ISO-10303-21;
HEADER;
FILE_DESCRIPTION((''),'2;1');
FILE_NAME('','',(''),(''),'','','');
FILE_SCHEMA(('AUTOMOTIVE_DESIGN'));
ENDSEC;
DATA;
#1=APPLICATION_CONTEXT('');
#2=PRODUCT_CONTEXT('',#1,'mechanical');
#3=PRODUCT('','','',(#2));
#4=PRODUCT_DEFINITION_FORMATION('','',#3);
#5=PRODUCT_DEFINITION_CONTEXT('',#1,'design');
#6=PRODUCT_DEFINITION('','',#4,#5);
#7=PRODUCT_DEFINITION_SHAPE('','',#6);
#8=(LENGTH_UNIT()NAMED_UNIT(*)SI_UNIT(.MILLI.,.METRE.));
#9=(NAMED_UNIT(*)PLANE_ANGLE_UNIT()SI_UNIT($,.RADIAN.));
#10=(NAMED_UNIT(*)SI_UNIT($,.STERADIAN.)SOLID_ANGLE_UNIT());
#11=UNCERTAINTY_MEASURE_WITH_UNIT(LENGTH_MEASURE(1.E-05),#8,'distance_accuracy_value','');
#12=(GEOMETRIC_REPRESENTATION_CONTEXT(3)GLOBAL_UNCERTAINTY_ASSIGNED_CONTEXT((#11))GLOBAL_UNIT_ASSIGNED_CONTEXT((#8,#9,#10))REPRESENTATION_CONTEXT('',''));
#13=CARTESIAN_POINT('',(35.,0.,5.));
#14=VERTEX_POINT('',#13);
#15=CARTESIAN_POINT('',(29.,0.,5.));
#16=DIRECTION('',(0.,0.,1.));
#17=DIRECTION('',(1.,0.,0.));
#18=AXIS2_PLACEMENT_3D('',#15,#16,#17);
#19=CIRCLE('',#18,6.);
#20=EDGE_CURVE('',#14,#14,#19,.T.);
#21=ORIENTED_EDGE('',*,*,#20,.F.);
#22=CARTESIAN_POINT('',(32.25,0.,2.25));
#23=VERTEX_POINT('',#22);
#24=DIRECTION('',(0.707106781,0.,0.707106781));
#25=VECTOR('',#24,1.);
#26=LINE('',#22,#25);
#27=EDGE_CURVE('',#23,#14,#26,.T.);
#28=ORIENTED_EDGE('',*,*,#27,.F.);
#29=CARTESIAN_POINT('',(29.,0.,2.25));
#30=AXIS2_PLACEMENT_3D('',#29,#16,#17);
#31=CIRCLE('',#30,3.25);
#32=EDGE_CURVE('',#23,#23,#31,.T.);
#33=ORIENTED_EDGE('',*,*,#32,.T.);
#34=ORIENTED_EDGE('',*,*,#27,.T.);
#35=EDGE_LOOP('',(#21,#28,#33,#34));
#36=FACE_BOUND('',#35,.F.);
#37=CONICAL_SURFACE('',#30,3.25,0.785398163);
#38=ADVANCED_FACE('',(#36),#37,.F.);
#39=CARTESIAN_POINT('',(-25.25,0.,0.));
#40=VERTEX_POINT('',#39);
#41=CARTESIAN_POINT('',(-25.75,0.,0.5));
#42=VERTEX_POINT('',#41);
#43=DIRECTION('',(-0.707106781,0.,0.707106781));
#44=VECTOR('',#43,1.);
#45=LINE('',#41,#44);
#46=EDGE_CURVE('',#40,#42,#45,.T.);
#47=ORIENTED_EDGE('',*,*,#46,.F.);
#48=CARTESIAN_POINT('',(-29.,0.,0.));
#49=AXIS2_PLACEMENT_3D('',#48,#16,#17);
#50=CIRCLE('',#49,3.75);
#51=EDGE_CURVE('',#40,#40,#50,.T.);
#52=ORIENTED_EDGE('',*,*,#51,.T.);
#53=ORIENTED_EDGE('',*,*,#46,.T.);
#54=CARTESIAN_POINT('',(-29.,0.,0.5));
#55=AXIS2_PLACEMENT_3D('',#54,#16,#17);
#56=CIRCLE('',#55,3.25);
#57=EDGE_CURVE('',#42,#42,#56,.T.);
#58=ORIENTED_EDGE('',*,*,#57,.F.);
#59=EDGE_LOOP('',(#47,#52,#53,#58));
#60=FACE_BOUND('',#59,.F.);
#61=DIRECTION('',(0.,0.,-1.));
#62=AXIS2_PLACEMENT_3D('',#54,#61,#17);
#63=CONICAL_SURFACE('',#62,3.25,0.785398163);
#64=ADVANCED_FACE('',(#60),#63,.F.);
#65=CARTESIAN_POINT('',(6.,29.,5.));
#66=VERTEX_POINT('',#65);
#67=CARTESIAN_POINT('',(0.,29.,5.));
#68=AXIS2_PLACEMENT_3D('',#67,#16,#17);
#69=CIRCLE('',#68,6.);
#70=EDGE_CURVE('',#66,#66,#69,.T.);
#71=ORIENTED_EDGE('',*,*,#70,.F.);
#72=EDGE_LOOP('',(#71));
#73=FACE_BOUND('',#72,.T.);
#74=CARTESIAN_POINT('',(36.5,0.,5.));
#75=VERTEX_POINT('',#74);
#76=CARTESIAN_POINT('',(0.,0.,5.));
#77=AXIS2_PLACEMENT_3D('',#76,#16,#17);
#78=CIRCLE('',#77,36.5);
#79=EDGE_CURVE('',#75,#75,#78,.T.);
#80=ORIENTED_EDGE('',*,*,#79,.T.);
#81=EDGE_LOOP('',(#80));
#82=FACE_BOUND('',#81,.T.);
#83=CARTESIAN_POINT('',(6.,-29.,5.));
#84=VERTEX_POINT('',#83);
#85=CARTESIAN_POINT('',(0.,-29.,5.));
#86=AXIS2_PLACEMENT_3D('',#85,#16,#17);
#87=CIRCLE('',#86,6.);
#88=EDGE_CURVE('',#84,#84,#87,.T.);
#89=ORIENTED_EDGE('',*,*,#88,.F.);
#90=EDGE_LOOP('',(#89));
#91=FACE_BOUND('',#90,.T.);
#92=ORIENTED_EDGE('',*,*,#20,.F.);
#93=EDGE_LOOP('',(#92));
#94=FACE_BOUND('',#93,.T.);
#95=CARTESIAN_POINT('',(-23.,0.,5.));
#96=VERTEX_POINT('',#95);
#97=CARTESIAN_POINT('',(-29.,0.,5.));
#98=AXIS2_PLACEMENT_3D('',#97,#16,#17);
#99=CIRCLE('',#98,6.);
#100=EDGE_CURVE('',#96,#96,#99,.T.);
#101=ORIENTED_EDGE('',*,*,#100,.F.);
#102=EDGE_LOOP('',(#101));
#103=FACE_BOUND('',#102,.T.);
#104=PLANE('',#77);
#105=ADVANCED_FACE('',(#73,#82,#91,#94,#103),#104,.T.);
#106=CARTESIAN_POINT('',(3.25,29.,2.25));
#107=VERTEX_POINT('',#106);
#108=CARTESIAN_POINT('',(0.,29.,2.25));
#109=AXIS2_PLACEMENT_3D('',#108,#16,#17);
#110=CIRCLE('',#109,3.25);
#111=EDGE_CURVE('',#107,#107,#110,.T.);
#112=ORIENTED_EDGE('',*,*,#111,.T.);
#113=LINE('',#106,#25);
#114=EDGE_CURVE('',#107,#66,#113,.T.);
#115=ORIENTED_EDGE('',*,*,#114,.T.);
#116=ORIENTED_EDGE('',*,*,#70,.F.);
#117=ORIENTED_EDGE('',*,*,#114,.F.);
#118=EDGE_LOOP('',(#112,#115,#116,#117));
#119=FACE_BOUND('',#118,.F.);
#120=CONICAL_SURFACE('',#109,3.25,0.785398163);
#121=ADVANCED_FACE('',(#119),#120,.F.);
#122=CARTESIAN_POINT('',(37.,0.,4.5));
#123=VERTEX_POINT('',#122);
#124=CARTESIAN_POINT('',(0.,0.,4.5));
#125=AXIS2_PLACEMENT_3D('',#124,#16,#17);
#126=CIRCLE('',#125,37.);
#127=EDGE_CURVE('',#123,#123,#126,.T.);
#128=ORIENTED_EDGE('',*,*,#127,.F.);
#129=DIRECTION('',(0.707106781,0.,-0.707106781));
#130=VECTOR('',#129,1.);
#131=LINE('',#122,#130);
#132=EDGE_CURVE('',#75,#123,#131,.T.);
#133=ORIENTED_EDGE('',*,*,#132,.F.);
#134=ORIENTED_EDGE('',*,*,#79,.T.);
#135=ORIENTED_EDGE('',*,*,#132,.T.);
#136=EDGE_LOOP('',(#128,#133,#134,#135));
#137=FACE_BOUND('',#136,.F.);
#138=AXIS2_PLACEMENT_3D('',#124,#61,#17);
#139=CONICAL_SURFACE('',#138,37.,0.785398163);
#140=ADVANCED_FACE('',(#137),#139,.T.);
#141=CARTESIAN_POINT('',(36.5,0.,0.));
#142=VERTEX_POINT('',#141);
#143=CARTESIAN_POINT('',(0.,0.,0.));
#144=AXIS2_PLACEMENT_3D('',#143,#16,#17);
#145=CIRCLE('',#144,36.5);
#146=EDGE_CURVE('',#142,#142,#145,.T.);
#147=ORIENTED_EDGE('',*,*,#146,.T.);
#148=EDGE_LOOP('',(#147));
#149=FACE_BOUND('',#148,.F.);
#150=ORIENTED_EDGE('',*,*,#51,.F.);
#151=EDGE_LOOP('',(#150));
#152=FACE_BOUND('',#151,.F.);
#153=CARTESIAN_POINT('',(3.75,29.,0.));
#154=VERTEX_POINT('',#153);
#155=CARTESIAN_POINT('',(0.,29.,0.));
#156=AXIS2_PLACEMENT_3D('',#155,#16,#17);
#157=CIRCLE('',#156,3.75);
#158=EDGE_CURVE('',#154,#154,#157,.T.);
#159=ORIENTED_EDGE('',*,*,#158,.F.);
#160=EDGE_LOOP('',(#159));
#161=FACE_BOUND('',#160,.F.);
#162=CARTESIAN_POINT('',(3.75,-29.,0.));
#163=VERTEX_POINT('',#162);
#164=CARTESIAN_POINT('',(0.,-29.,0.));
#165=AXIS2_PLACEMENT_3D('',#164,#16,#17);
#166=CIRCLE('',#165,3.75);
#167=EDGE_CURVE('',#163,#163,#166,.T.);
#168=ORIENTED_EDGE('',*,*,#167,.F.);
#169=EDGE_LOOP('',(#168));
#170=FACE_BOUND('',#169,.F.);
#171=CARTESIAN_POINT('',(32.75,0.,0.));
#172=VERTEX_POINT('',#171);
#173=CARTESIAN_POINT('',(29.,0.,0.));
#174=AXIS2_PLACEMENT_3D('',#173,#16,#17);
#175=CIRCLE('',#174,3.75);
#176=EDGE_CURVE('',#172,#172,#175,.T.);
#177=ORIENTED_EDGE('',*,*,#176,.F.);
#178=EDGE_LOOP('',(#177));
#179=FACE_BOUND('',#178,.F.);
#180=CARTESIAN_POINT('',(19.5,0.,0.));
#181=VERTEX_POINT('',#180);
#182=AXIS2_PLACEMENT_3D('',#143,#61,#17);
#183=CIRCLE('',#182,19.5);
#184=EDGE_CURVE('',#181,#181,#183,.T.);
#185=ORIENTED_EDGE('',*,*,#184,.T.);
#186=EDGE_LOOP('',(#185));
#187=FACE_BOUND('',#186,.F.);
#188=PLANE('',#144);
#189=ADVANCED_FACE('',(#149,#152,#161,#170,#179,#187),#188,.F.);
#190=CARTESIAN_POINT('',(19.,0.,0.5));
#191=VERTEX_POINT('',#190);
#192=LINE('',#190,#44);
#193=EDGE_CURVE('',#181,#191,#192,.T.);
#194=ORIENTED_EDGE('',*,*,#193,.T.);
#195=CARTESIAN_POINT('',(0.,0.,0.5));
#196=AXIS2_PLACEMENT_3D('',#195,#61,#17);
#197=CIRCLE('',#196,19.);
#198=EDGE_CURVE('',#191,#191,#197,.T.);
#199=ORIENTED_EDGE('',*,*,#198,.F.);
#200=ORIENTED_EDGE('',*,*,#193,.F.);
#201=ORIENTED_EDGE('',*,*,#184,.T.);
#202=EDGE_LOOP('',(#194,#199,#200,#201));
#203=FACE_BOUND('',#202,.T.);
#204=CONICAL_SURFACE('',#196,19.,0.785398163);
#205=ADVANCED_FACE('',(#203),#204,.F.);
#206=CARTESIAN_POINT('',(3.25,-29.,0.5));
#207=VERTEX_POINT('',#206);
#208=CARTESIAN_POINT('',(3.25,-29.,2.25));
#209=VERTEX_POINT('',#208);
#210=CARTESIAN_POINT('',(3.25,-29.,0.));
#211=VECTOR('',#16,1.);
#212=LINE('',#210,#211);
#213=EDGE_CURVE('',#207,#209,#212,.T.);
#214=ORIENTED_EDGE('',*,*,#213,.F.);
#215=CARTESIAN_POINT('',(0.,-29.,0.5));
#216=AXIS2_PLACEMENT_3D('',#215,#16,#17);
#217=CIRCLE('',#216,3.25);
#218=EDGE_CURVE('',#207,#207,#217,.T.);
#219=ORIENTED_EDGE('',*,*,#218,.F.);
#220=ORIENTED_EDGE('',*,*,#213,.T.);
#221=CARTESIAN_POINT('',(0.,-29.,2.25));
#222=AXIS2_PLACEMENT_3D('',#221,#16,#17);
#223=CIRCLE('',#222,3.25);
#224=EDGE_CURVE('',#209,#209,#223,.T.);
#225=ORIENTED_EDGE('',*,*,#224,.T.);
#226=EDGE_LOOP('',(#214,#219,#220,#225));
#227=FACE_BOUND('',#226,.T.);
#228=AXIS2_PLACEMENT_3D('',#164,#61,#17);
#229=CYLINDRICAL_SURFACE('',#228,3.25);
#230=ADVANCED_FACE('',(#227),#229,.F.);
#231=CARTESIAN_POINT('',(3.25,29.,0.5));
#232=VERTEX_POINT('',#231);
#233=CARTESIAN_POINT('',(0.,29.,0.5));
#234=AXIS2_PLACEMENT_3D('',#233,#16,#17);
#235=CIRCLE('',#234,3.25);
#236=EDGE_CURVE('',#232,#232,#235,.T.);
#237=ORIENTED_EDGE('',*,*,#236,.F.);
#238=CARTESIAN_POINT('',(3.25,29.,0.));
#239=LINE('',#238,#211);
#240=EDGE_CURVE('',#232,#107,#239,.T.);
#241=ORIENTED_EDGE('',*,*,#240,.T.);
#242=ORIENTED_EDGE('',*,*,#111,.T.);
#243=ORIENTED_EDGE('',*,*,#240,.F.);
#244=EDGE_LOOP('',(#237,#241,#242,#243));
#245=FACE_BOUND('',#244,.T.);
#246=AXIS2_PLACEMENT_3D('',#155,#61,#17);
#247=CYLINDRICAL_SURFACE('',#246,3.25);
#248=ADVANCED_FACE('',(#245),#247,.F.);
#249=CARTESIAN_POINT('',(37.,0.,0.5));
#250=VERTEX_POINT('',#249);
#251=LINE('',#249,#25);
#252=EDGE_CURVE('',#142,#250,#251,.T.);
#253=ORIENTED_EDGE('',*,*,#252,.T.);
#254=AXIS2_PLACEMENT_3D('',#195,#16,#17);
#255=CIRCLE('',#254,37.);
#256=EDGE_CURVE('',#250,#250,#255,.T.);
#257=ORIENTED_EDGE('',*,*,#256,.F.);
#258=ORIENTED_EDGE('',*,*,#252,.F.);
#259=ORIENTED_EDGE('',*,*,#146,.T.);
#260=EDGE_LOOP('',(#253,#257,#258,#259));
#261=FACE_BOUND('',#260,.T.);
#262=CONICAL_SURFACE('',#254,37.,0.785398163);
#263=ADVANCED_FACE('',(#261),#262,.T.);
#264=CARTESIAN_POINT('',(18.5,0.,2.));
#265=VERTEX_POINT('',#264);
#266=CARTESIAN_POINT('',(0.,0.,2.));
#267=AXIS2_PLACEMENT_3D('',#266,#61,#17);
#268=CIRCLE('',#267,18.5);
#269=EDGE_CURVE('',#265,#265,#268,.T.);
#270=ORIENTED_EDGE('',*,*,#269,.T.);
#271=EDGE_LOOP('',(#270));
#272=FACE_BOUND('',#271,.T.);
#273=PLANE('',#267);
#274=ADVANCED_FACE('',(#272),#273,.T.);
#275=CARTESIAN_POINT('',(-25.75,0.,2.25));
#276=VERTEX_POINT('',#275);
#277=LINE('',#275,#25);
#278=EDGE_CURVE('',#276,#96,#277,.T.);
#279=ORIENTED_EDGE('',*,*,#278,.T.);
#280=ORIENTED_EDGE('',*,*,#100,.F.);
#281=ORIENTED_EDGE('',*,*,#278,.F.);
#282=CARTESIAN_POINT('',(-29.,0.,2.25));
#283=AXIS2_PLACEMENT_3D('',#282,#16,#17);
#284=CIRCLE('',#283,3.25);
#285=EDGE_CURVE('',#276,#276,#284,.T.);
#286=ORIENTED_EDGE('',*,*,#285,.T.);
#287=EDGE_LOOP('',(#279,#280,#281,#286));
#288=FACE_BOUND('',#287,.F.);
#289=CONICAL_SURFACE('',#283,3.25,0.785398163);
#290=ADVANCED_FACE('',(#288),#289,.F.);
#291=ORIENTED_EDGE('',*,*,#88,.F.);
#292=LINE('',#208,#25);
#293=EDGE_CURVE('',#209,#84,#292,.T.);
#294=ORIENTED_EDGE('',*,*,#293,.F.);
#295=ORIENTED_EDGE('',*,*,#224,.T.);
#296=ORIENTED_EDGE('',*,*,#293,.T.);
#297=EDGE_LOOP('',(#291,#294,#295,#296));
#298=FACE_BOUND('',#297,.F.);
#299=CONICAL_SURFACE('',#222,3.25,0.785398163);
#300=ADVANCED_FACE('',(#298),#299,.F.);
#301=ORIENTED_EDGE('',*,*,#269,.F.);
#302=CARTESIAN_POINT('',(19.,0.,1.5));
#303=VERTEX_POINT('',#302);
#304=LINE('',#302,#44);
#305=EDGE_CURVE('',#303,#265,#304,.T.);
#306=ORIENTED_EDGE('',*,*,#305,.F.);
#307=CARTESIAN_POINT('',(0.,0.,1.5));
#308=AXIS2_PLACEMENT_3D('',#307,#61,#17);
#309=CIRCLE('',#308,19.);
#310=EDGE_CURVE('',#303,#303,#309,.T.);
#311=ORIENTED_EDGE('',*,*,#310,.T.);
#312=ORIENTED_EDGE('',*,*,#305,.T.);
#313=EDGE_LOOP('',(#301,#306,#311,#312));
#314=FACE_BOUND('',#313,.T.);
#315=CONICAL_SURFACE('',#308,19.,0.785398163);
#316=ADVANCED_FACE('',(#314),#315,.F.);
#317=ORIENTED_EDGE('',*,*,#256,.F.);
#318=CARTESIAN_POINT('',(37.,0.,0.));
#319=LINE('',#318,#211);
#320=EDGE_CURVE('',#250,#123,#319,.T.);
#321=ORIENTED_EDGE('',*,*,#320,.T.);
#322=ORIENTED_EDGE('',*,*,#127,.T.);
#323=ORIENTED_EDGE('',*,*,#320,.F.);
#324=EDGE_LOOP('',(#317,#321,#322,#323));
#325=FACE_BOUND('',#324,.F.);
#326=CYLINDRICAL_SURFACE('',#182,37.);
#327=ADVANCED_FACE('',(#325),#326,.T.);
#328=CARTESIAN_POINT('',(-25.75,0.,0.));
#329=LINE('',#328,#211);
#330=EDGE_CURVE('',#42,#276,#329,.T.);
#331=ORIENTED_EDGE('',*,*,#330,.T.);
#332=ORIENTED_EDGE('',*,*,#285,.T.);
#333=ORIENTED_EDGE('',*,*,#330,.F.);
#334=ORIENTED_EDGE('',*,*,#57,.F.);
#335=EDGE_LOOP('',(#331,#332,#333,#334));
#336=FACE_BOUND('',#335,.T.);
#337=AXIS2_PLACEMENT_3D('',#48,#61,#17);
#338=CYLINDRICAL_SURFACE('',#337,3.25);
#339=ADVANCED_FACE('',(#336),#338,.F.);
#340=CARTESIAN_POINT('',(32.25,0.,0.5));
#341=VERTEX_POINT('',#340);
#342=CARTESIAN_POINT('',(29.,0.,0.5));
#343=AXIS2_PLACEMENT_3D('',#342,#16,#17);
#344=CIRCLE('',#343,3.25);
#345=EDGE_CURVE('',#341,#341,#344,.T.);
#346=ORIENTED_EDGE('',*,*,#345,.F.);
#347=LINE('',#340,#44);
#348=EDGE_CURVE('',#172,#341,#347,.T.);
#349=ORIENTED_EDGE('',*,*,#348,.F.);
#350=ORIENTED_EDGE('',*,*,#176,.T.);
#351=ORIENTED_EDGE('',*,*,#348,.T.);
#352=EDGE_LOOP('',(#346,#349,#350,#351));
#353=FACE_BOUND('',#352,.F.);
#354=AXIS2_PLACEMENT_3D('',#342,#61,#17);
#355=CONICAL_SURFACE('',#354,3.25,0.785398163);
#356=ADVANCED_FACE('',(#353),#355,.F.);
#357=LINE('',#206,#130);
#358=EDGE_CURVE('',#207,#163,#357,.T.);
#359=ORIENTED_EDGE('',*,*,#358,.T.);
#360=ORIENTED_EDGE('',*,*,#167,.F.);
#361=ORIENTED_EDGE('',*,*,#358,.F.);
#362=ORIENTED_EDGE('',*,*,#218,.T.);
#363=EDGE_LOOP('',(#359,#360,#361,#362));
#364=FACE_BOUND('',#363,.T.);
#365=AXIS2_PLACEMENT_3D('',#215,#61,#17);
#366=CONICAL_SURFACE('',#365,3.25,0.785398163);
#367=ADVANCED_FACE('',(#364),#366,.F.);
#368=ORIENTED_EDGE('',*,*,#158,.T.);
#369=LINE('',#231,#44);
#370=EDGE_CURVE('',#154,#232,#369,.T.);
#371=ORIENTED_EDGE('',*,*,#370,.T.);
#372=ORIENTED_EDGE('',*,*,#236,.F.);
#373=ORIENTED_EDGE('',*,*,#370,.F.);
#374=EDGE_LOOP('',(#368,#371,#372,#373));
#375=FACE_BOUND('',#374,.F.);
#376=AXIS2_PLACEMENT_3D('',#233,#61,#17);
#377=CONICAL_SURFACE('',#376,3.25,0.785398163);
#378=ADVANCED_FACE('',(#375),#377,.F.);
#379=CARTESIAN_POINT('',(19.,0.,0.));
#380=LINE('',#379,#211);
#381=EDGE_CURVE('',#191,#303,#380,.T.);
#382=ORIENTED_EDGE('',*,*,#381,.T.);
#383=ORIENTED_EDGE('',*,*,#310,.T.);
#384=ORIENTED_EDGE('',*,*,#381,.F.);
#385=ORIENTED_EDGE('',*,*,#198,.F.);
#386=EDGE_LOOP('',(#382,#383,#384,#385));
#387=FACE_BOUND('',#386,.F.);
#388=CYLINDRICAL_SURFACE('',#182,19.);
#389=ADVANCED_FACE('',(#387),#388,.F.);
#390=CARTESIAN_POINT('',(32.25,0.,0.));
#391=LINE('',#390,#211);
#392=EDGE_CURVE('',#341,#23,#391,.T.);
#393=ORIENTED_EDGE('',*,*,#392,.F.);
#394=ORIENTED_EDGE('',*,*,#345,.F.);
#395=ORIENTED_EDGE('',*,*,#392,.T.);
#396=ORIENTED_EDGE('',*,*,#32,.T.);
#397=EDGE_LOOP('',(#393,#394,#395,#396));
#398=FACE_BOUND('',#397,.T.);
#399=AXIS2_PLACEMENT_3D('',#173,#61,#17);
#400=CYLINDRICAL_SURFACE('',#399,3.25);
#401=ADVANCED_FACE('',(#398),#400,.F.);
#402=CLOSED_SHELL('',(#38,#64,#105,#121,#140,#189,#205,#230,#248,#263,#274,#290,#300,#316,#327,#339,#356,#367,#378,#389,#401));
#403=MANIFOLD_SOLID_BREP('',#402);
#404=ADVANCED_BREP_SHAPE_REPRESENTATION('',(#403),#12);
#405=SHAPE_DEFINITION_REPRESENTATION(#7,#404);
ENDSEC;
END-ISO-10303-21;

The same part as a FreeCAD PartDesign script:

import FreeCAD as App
import Part
import Sketcher


def edges_at(feature, points):
    """Names of the edges that pass closest to the given points."""
    edges = feature.Shape.Edges
    near = lambda p: min(range(len(edges)), key=lambda i: edges[i].distToShape(Part.Vertex(*p))[0])
    return sorted({f"Edge{near(p) + 1}" for p in points})

doc = App.newDocument("Part")
body = doc.addObject("PartDesign::Body", "Body")

# Sketch on XY plane
sketch1 = body.newObject("Sketcher::SketchObject", "Sketch")
sketch1.AttachmentSupport = (doc.getObject("XY_Plane"), [""])
sketch1.MapMode = "FlatFace"
sketch1.addGeometry([
    Part.Circle(App.Vector(0, 0, 0), App.Vector(0, 0, 1), 37),  # 0
    Part.Circle(App.Vector(0, -29, 0), App.Vector(0, 0, 1), 3.2),  # 1
    Part.Circle(App.Vector(-29, 0, 0), App.Vector(0, 0, 1), 3.2),  # 2
    Part.Circle(App.Vector(29, 0, 0), App.Vector(0, 0, 1), 3.2),  # 3
    Part.Circle(App.Vector(0, 29, 0), App.Vector(0, 0, 1), 3.2),  # 4
], False)
sketch1.addConstraint([
    Sketcher.Constraint("Coincident", 0, 3, -1, 1),
    Sketcher.Constraint("Equal", 1, 2),
    Sketcher.Constraint("Equal", 2, 3),
    Sketcher.Constraint("Equal", 3, 4),
    Sketcher.Constraint("Symmetric", 2, 3, 3, 3, -1, 1),
    Sketcher.Constraint("Symmetric", 1, 3, 4, 3, -1, 1),
    Sketcher.Constraint("PointOnObject", 1, 3, -2),
    Sketcher.Constraint("PointOnObject", 2, 3, -1),
    Sketcher.Constraint("Diameter", 0, 74.0),
    Sketcher.Constraint("Diameter", 1, 6.5),
    Sketcher.Constraint("DistanceY", 1, 3, -1, 1, 29.0),
    Sketcher.Constraint("DistanceX", 2, 3, -1, 1, 29.0),
])
pad1 = body.newObject("PartDesign::Pad", "Pad")
pad1.Profile = sketch1
pad1.Length = 5
doc.recompute()

chamfer = body.newObject("PartDesign::Chamfer", "Chamfer")
chamfer.Base = (pad1, edges_at(pad1, [
    (-3.25, -29, 5),
    (-32.25, 0, 5),
    (-3.25, 29, 5),
    (25.75, 0, 5),
]))
chamfer.Size = 2.75
doc.recompute()

chamfer2 = body.newObject("PartDesign::Chamfer", "Chamfer001")
chamfer2.Base = (chamfer, edges_at(chamfer, [
    (37, 0, 2.5),
    (-37, 0, 0),
    (-37, 0, 5),
    (-3.25, -29, 0),
    (-32.25, 0, 0),
    (-3.25, 29, 0),
    (25.75, 0, 0),
]))
chamfer2.Size = 0.5

# Sketch on XY plane
sketch2 = body.newObject("Sketcher::SketchObject", "Sketch001")
sketch2.AttachmentSupport = (doc.getObject("XY_Plane"), [""])
sketch2.MapMode = "FlatFace"
sketch2.addGeometry(Part.Circle(App.Vector(0, 0, 0), App.Vector(0, 0, 1), 19), False)
sketch2.addConstraint([
    Sketcher.Constraint("Coincident", 0, 3, -1, 1),
    Sketcher.Constraint("Diameter", 0, 38.0),
])
pocket1 = body.newObject("PartDesign::Pocket", "Pocket")
pocket1.Profile = sketch2
pocket1.Length = 2
pocket1.Reversed = True
doc.recompute()

chamfer3 = body.newObject("PartDesign::Chamfer", "Chamfer002")
chamfer3.Base = (pocket1, edges_at(pocket1, [(19, 0, 1), (-19, 0, 0), (-19, 0, 2)]))
chamfer3.Size = 0.5

doc.recompute()
